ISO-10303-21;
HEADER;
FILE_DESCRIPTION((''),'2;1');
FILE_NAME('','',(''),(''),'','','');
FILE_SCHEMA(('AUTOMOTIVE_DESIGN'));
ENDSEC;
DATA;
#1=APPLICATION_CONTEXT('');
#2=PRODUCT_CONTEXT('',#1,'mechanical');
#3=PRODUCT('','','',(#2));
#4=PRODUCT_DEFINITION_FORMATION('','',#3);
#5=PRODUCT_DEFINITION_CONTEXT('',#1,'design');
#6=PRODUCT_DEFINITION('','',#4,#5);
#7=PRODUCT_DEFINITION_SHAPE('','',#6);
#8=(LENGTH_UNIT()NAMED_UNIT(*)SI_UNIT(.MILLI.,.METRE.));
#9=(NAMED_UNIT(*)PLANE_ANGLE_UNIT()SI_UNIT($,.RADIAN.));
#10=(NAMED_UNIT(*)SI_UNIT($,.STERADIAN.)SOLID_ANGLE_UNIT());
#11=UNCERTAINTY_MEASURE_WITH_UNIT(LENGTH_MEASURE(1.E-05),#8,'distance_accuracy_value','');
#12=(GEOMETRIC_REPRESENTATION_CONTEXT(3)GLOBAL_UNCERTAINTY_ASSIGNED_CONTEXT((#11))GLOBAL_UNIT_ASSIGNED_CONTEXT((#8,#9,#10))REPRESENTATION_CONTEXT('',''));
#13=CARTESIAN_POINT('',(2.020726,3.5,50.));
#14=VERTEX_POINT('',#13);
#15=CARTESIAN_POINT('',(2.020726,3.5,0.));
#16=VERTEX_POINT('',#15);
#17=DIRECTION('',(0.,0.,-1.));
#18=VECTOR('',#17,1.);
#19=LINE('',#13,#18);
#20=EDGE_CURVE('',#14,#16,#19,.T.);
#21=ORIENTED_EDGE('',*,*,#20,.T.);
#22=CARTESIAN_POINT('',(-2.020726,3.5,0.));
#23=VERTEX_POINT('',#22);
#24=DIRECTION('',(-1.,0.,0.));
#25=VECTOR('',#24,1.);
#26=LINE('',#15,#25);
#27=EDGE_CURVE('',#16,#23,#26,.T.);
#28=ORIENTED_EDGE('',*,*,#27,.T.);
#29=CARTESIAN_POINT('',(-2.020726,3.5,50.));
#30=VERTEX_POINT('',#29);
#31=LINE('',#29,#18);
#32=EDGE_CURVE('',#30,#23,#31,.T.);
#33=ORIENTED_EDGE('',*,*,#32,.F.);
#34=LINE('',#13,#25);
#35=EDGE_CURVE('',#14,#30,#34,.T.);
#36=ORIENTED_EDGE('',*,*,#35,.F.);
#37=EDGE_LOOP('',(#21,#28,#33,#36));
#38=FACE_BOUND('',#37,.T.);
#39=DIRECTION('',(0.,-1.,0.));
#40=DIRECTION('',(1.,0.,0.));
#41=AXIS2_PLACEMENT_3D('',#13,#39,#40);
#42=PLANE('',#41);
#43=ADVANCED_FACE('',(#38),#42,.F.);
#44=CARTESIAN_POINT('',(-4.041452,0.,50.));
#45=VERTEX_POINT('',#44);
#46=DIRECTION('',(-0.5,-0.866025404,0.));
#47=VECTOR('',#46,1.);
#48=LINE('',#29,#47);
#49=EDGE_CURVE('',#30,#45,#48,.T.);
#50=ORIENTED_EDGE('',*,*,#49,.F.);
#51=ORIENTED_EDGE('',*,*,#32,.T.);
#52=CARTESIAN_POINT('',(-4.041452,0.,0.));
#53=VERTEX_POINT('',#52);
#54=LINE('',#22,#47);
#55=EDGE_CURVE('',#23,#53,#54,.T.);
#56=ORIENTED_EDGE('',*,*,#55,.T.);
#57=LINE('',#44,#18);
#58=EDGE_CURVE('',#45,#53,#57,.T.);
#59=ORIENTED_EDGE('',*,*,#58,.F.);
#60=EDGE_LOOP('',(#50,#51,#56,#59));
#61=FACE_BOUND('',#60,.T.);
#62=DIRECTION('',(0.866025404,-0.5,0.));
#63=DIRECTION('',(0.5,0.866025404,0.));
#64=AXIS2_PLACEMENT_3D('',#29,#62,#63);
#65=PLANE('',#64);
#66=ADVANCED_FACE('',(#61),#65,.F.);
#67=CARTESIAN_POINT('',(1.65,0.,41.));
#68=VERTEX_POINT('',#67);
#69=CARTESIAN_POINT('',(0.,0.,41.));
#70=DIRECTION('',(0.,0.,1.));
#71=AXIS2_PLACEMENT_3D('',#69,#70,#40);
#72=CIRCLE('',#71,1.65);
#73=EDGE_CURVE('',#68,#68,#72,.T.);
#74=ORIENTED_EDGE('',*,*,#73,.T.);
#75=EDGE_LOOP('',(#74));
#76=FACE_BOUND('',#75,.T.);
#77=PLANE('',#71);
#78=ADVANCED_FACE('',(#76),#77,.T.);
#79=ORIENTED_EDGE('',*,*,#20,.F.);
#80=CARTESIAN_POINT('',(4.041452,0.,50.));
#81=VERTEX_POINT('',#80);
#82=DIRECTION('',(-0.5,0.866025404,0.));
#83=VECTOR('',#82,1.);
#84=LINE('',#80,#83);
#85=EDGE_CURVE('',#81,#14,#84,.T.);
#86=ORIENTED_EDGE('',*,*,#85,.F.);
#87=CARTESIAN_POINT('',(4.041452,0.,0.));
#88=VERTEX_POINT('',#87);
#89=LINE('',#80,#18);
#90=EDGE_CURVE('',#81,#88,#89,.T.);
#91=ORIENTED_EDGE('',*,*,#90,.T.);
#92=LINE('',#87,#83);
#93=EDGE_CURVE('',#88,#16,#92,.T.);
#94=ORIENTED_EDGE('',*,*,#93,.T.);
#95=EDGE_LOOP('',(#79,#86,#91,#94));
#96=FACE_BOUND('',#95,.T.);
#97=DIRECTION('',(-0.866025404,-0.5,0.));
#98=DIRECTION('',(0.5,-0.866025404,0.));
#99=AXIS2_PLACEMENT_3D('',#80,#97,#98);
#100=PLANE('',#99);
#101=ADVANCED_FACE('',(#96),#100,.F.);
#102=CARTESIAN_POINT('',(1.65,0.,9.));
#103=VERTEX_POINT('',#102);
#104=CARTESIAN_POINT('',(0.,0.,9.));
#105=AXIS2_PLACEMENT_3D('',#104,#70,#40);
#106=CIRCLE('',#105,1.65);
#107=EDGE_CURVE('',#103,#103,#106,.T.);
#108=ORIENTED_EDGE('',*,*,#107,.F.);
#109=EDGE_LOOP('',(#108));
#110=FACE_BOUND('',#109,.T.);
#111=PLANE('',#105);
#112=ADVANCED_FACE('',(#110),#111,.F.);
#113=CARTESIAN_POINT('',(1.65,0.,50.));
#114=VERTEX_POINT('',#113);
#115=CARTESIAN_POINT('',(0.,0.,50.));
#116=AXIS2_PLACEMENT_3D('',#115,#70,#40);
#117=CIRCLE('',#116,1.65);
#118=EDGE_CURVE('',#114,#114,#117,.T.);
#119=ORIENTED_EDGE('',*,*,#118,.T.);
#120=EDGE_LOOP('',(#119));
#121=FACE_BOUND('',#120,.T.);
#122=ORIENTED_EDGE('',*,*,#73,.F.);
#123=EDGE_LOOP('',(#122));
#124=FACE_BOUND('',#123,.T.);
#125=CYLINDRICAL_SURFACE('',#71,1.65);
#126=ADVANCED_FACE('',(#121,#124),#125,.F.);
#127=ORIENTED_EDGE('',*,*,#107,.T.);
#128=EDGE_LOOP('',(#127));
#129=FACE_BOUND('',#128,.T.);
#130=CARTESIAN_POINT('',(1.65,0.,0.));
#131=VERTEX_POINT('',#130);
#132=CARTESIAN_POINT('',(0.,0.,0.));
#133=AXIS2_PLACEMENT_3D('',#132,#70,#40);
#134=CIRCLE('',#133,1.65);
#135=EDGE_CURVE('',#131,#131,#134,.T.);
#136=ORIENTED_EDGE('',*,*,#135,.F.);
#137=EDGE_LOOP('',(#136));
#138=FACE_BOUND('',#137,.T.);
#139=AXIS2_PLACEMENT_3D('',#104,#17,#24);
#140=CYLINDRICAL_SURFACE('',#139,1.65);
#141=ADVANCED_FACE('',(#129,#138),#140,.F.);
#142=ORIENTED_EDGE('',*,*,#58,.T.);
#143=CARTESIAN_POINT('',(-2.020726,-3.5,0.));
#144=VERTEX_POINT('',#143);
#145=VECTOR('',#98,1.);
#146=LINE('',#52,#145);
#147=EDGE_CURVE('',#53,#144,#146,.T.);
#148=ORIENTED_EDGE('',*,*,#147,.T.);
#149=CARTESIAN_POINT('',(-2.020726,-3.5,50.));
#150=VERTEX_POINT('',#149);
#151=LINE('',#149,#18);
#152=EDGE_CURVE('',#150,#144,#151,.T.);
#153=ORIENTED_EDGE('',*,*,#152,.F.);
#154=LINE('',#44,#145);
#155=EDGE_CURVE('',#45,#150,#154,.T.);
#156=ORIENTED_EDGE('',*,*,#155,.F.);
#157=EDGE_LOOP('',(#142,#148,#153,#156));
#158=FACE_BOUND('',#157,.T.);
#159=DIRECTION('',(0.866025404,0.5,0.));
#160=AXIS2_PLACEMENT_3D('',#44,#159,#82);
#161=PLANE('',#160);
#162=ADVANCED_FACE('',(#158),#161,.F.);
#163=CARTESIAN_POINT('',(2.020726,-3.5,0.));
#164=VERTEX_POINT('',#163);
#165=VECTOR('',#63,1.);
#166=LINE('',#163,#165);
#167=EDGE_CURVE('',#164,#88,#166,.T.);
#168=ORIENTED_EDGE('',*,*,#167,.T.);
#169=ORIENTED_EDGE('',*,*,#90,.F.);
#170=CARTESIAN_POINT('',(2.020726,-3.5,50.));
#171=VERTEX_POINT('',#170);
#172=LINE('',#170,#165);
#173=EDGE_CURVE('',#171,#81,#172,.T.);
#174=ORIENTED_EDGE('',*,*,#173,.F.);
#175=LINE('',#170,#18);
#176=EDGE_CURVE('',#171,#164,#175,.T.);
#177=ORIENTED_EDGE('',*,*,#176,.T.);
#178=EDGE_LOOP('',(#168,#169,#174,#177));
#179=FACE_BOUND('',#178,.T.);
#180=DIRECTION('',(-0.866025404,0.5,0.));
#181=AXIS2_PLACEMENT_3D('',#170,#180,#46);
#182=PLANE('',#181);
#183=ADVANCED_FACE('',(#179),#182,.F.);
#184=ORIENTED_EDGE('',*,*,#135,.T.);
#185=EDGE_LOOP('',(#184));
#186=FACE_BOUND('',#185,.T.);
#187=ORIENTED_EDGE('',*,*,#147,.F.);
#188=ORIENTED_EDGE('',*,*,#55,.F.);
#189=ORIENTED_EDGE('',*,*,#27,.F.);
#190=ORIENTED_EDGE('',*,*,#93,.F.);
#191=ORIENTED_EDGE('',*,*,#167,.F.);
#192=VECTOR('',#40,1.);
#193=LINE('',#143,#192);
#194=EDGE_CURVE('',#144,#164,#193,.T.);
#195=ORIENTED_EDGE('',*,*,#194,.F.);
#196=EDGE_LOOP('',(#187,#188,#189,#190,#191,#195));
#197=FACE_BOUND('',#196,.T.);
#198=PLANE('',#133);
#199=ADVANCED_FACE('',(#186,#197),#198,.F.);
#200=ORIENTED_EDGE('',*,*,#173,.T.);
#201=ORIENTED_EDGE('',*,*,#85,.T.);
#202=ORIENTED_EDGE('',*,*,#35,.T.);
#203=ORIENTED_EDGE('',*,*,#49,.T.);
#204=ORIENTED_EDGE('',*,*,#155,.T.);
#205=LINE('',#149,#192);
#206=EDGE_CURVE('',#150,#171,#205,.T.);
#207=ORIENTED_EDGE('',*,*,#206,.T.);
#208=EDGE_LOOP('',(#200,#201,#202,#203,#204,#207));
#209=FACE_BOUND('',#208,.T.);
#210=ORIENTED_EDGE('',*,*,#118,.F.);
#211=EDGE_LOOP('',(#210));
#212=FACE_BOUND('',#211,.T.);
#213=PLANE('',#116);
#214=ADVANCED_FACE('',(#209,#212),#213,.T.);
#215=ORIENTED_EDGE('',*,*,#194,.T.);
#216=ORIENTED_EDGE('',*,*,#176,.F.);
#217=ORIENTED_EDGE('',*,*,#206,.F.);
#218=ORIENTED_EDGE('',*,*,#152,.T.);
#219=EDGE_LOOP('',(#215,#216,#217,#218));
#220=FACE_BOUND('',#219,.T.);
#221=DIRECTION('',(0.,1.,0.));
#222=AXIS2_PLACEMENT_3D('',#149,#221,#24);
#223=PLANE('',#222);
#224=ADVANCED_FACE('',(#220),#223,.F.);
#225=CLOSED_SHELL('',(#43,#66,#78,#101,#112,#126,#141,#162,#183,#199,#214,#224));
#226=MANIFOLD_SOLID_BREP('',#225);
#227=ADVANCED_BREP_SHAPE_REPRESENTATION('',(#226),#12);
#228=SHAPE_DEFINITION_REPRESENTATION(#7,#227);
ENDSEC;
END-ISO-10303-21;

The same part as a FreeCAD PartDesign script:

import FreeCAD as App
import Part
import Sketcher
Q = App.Units.Quantity


def add_polygon(sketch, points):
    """Adds a closed chain of lines whose ends are joined by coincident constraints."""
    first, n = sketch.GeometryCount, len(points)
    for a, b in zip(points, points[1:] + points[:1]):
        sketch.addGeometry(Part.LineSegment(App.Vector(*a, 0), App.Vector(*b, 0)), False)
    for i in range(n):
        sketch.addConstraint(Sketcher.Constraint("Coincident", first + i, 2, first + (i + 1) % n, 1))

doc = App.newDocument("Part")
body = doc.addObject("PartDesign::Body", "Body")

# Sketch on XY plane
sketch1 = doc.addObject("Sketcher::SketchObject", "Sketch")
body.addObject(sketch1)
sketch1.AttachmentSupport = (doc.XY_Plane, [""])
sketch1.MapMode = "FlatFace"
add_polygon(sketch1, [(4, 0), (2, 3.5), (-2, 3.5), (-4, 0), (-2, -3.5), (2, -3.5)])  # lines 0-5
sketch1.addConstraint([
    Sketcher.Constraint("Horizontal", 1),
    Sketcher.Constraint("Horizontal", 4),
    Sketcher.Constraint("Symmetric", 0, 2, 3, 2, -1, 1),
    Sketcher.Constraint("Symmetric", 2, 2, 5, 2, -1, 1),
    Sketcher.Constraint("PointOnObject", 2, 2, -1),
    Sketcher.Constraint("Parallel", 2, 5),
    Sketcher.Constraint("Vertical", 1, 2, 3, 2),
    Sketcher.Constraint("Angle", 0, Q("120 deg")),
    Sketcher.Constraint("DistanceY", 3, 2, 1, 2, Q("7 mm")),
    Sketcher.Constraint("DistanceX", 1, 2, 1, 1, Q("4.041452 mm")),
])
pad1 = doc.addObject("PartDesign::Pad", "Pad")
body.addObject(pad1)
pad1.Profile = sketch1
pad1.Length = 50

# Sketch on XY plane
sketch2 = doc.addObject("Sketcher::SketchObject", "Sketch001")
body.addObject(sketch2)
sketch2.AttachmentSupport = (doc.XY_Plane, [""])
sketch2.MapMode = "FlatFace"
sketch2.AttachmentOffset = App.Placement(App.Vector(0, 0, 50), App.Rotation())
sketch2.addGeometry(Part.Circle(App.Vector(0, 0, 0), App.Vector(0, 0, 1), 1.6), False)
sketch2.addConstraint([
    Sketcher.Constraint("Coincident", 0, 3, -1, 1),
    Sketcher.Constraint("Diameter", 0, Q("3.3 mm")),
])
pocket1 = doc.addObject("PartDesign::Pocket", "Pocket")
body.addObject(pocket1)
pocket1.Profile = sketch2
pocket1.Length = 9

# Sketch on XY plane
sketch3 = doc.addObject("Sketcher::SketchObject", "Sketch002")
body.addObject(sketch3)
sketch3.AttachmentSupport = (doc.XY_Plane, [""])
sketch3.MapMode = "FlatFace"
sketch3.AttachmentOffset = App.Placement(App.Vector(0, 0, 9), App.Rotation())
sketch3.addGeometry(Part.Circle(App.Vector(0, 0, 0), App.Vector(0, 0, 1), 1.6), False)
sketch3.addConstraint([
    Sketcher.Constraint("Coincident", 0, 3, -1, 1),
    Sketcher.Constraint("Diameter", 0, Q("3.3 mm")),
])
pocket2 = doc.addObject("PartDesign::Pocket", "Pocket001")
body.addObject(pocket2)
pocket2.Profile = sketch3
pocket2.Length = 9

doc.recompute()
